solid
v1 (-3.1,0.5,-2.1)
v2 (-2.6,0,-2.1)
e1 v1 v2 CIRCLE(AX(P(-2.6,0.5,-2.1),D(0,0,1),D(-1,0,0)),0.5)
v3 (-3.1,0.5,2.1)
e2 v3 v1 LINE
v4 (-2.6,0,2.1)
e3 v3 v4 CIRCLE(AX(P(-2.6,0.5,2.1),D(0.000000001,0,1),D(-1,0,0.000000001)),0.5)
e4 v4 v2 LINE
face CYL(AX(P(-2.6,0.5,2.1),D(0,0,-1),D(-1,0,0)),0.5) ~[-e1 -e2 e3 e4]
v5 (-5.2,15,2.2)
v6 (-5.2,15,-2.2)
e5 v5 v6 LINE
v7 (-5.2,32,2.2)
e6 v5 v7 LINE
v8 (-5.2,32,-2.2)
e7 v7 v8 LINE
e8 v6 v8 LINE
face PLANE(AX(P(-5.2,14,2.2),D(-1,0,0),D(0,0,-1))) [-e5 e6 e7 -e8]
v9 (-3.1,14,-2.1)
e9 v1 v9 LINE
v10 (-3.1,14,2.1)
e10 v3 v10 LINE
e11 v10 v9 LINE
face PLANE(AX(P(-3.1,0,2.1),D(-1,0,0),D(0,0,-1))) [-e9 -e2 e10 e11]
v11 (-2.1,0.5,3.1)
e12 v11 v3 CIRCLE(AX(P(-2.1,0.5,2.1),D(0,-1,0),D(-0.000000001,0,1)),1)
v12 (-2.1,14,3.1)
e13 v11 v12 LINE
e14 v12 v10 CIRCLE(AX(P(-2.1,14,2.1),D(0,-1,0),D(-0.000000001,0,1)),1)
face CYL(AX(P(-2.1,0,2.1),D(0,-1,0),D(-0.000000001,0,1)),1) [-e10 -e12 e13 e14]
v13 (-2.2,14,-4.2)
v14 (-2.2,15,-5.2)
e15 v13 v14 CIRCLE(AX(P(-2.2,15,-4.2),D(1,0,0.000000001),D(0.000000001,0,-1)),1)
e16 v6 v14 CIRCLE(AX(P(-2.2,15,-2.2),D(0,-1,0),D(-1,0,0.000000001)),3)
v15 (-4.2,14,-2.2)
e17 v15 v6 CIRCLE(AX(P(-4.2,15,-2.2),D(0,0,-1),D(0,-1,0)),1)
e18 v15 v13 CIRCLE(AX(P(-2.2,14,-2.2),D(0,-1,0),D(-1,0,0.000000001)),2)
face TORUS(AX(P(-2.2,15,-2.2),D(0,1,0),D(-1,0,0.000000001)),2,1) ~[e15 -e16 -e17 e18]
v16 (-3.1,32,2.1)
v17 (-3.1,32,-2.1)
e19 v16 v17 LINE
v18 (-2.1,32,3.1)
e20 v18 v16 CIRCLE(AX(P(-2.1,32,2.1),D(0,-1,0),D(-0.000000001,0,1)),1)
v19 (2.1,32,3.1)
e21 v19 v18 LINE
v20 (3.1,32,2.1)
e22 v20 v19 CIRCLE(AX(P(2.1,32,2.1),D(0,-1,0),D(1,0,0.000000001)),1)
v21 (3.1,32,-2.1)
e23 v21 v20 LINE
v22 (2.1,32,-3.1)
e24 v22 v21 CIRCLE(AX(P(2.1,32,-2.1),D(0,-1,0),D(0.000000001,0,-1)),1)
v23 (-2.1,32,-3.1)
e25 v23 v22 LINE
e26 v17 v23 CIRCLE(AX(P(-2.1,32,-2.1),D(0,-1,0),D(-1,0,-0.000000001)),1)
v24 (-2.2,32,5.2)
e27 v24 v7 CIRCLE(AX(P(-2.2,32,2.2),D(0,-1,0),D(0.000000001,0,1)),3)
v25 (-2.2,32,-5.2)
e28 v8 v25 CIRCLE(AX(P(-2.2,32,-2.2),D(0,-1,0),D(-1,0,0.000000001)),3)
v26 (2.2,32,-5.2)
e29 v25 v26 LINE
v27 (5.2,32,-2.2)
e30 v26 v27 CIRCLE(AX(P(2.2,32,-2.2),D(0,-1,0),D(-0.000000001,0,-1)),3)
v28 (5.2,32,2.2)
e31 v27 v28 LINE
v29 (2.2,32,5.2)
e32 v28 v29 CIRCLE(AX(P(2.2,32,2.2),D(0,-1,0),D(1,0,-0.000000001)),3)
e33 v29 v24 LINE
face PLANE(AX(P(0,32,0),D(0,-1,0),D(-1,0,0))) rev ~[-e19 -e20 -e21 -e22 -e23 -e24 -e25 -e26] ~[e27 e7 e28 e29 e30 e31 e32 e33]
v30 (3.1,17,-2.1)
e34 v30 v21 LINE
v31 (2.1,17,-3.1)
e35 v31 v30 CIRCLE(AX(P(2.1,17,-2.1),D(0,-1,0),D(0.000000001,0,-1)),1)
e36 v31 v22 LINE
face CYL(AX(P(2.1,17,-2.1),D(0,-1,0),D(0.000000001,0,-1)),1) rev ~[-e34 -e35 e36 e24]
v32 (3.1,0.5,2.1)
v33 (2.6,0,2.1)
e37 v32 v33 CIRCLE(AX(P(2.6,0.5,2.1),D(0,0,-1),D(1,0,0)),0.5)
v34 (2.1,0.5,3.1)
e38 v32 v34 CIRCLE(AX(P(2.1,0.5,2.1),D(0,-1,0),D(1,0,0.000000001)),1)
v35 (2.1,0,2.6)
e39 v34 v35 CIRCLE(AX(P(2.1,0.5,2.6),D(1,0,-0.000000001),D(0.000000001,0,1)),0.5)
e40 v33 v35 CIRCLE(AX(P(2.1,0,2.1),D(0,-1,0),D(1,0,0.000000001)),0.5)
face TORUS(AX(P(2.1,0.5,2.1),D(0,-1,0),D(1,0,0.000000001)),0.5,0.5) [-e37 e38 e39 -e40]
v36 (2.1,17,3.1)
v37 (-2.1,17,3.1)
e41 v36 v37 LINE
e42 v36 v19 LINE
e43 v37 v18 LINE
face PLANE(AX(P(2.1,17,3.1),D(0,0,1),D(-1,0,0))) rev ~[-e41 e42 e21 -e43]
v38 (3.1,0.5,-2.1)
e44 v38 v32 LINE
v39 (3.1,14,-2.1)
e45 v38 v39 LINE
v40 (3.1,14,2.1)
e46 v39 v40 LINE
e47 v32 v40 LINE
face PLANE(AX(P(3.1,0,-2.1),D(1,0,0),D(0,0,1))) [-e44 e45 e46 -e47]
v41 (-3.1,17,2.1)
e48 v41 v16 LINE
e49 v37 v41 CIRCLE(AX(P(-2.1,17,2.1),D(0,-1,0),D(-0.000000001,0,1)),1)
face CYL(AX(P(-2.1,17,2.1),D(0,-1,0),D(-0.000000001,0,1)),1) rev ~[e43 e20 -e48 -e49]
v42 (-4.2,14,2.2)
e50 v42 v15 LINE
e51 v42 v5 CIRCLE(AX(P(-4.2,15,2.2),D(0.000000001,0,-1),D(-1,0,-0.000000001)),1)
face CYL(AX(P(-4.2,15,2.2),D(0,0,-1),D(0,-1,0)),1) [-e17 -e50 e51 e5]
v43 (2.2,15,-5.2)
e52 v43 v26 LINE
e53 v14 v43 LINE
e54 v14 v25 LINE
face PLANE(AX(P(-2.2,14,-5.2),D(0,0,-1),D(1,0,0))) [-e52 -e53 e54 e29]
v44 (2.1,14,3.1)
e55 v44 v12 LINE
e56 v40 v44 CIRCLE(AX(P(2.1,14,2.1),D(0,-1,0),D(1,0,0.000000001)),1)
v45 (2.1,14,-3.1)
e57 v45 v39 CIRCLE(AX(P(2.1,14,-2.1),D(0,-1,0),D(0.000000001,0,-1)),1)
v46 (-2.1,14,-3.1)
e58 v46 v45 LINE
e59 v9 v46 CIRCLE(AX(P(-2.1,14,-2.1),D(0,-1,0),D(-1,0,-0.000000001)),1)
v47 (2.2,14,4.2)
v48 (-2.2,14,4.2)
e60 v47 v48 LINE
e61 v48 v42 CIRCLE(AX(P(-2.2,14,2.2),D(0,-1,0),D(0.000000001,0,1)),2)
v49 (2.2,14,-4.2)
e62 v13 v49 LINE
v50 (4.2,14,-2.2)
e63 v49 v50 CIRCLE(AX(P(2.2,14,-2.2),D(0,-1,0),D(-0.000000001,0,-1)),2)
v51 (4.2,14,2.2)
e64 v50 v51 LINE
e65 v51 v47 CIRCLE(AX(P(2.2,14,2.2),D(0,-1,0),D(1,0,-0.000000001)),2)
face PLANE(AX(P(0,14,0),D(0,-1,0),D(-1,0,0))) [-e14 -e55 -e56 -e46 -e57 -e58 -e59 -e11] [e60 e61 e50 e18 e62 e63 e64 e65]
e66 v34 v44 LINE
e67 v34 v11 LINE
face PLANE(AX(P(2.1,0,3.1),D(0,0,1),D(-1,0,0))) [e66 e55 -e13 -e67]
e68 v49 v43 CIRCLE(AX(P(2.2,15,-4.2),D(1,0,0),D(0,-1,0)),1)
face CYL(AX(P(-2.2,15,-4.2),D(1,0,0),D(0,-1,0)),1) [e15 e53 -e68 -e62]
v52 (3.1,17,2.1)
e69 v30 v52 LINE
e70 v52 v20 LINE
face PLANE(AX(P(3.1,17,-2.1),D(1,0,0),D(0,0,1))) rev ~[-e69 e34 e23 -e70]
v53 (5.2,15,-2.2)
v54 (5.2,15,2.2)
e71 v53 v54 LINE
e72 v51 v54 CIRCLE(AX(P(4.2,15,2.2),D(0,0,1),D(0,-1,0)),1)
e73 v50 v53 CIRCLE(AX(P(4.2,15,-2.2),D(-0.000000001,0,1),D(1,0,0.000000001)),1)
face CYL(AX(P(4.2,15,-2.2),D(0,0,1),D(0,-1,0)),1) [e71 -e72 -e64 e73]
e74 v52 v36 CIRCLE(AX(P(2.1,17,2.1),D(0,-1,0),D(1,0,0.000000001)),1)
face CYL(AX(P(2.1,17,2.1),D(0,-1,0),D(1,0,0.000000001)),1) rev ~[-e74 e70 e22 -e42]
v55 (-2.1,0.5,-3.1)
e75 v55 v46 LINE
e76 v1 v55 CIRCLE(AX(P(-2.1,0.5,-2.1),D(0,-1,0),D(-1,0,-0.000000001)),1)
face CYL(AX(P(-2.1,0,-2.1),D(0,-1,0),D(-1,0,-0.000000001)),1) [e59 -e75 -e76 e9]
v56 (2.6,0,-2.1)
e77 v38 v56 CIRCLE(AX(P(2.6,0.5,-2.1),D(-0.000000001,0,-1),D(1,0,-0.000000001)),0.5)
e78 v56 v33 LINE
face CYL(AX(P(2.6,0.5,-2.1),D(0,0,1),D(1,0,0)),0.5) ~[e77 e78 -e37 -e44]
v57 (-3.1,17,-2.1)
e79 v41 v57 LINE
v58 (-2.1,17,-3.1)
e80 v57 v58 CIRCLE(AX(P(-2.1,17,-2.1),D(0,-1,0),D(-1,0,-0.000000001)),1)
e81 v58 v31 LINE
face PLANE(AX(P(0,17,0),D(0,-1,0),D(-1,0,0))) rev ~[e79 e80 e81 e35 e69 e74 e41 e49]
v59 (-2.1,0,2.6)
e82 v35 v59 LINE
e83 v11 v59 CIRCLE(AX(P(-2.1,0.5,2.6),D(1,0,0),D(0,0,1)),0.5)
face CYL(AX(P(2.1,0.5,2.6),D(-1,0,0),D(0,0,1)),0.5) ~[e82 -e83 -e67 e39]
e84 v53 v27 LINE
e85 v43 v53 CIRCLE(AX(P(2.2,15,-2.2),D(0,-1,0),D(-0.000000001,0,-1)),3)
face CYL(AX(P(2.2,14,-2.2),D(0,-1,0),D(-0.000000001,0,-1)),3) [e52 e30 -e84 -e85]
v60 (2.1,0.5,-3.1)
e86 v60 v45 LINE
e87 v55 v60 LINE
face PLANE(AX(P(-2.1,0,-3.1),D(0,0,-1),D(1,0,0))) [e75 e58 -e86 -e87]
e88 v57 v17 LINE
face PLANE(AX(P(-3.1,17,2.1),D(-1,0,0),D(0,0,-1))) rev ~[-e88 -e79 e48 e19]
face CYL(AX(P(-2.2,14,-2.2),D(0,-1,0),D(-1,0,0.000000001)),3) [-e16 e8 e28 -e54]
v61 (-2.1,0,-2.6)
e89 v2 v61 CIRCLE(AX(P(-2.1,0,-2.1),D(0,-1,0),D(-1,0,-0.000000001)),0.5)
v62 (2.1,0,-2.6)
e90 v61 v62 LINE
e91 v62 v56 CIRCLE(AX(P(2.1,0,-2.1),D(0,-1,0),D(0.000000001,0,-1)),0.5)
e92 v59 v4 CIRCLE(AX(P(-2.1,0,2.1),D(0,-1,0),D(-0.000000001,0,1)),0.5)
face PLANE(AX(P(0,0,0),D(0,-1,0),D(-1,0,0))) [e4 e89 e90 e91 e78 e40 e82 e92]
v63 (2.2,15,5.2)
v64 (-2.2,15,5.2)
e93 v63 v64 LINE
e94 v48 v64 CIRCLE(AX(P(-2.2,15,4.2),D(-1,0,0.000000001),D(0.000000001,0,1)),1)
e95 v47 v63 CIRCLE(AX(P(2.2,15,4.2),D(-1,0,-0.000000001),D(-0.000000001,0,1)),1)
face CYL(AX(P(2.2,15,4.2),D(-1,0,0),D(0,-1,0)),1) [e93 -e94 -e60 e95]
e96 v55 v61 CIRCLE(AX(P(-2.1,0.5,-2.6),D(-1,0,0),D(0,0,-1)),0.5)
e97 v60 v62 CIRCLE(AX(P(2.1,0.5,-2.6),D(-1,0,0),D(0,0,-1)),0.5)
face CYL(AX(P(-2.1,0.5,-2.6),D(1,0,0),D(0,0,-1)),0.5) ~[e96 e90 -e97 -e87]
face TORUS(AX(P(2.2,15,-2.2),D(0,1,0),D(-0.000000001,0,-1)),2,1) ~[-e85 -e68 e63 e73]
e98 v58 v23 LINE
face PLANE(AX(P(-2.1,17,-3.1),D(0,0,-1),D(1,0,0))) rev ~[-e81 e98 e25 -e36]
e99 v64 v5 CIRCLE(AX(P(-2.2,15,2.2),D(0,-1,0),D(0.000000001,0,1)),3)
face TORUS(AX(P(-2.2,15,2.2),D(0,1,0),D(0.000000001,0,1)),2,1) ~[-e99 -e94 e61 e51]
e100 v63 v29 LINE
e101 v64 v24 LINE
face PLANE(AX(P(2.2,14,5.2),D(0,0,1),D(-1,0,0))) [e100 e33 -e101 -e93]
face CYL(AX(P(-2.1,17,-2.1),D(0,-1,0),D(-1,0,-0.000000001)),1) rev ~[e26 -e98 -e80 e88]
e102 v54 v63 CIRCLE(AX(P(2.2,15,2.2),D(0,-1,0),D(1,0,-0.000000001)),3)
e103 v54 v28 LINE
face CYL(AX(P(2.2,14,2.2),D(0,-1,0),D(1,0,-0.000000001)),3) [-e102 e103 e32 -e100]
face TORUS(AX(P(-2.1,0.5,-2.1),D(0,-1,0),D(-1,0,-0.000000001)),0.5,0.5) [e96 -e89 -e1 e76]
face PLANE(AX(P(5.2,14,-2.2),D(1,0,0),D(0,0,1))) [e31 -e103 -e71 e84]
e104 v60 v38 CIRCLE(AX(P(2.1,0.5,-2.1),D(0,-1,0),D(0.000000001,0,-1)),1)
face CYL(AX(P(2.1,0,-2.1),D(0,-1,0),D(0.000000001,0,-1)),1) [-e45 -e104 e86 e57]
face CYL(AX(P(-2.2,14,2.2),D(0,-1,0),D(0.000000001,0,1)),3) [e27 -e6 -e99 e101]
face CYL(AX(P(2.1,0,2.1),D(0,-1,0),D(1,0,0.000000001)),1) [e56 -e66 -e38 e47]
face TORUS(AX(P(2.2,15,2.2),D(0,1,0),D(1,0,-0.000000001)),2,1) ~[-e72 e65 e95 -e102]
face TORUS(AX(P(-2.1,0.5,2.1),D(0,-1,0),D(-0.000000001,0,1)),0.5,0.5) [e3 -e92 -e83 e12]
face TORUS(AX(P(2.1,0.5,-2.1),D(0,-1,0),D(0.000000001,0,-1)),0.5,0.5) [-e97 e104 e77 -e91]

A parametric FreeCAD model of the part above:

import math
import FreeCAD as App
import Part
import Sketcher

V = App.Vector


def edges_at(feature, points):
    """Names of the edges that pass closest to the given points."""
    edges = feature.Shape.Edges
    near = lambda p: min(range(len(edges)), key=lambda i: edges[i].distToShape(Part.Vertex(*p))[0])
    return sorted({f"Edge{near(p) + 1}" for p in points})

doc = App.newDocument("Part")
body = doc.addObject("PartDesign::Body", "Body")

# Sketch on XZ plane
sketch1 = doc.addObject("Sketcher::SketchObject", "Sketch")
body.addObject(sketch1)
sketch1.AttachmentSupport = (doc.XZ_Plane, [""])
sketch1.MapMode = "FlatFace"
sketch1.addGeometry([
    Part.LineSegment(V(2.1, -3.1, 0), V(-2.1, -3.1, 0)),  # 0
    Part.ArcOfCircle(Part.Circle(V(-2.1, -2.1, 0), V(0, 0, 1), 1), math.radians(-180), math.radians(-90)),  # 1
    Part.LineSegment(V(-3.1, -2.1, 0), V(-3.1, 2.1, 0)),  # 2
    Part.ArcOfCircle(Part.Circle(V(-2.1, 2.1, 0), V(0, 0, 1), 1), math.radians(90), math.radians(180)),  # 3
    Part.LineSegment(V(-2.1, 3.1, 0), V(2.1, 3.1, 0)),  # 4
    Part.ArcOfCircle(Part.Circle(V(2.1, 2.1, 0), V(0, 0, 1), 1), math.radians(0), math.radians(90)),  # 5
    Part.LineSegment(V(3.1, 2.1, 0), V(3.1, -2.1, 0)),  # 6
    Part.ArcOfCircle(Part.Circle(V(2.1, -2.1, 0), V(0, 0, 1), 1), math.radians(-90), math.radians(0)),  # 7
], False)
sketch1.addConstraint([
    Sketcher.Constraint("Tangent", 0, 2, 1, 2),
    Sketcher.Constraint("Tangent", 1, 1, 2, 1),
    Sketcher.Constraint("Tangent", 2, 2, 3, 2),
    Sketcher.Constraint("Tangent", 3, 1, 4, 1),
    Sketcher.Constraint("Tangent", 4, 2, 5, 2),
    Sketcher.Constraint("Tangent", 5, 1, 6, 1),
    Sketcher.Constraint("Tangent", 6, 2, 7, 2),
    Sketcher.Constraint("Tangent", 7, 1, 0, 1),
    Sketcher.Constraint("Horizontal", 0),
    Sketcher.Constraint("Vertical", 2),
    Sketcher.Constraint("Horizontal", 4),
    Sketcher.Constraint("Vertical", 6),
    Sketcher.Constraint("Equal", 1, 3),
    Sketcher.Constraint("Equal", 3, 5),
    Sketcher.Constraint("Equal", 5, 7),
    Sketcher.Constraint("Symmetric", 1, 3, 5, 3, -1, 1),
    Sketcher.Constraint("Equal", 4, 2),
    Sketcher.Constraint("Radius", 1, 1.0),
    Sketcher.Constraint("DistanceX", 0, 2, 0, 1, 4.2),
])
pad1 = doc.addObject("PartDesign::Pad", "Pad")
body.addObject(pad1)
pad1.Profile = sketch1
pad1.Length = 14
pad1.Reversed = True

# Sketch on XZ plane
sketch2 = doc.addObject("Sketcher::SketchObject", "Sketch001")
body.addObject(sketch2)
sketch2.AttachmentSupport = (doc.XZ_Plane, [""])
sketch2.MapMode = "FlatFace"
sketch2.AttachmentOffset = App.Placement(V(0, 0, -14), App.Rotation())
sketch2.addGeometry([
    Part.LineSegment(V(2.2, -5.2, 0), V(-2.2, -5.2, 0)),  # 0
    Part.ArcOfCircle(Part.Circle(V(-2.2, -2.2, 0), V(0, 0, 1), 3), math.radians(180), math.radians(270)),  # 1
    Part.LineSegment(V(-5.2, -2.2, 0), V(-5.2, 2.2, 0)),  # 2
    Part.ArcOfCircle(Part.Circle(V(-2.2, 2.2, 0), V(0, 0, 1), 3), math.radians(90), math.radians(180)),  # 3
    Part.LineSegment(V(-2.2, 5.2, 0), V(2.2, 5.2, 0)),  # 4
    Part.ArcOfCircle(Part.Circle(V(2.2, 2.2, 0), V(0, 0, 1), 3), math.radians(0), math.radians(90)),  # 5
    Part.LineSegment(V(5.2, 2.2, 0), V(5.2, -2.2, 0)),  # 6
    Part.ArcOfCircle(Part.Circle(V(2.2, -2.2, 0), V(0, 0, 1), 3), math.radians(-90), math.radians(0)),  # 7
], False)
sketch2.addConstraint([
    Sketcher.Constraint("Tangent", 0, 2, 1, 2),
    Sketcher.Constraint("Tangent", 1, 1, 2, 1),
    Sketcher.Constraint("Tangent", 2, 2, 3, 2),
    Sketcher.Constraint("Tangent", 3, 1, 4, 1),
    Sketcher.Constraint("Tangent", 4, 2, 5, 2),
    Sketcher.Constraint("Tangent", 5, 1, 6, 1),
    Sketcher.Constraint("Tangent", 6, 2, 7, 2),
    Sketcher.Constraint("Tangent", 7, 1, 0, 1),
    Sketcher.Constraint("Horizontal", 0),
    Sketcher.Constraint("Vertical", 2),
    Sketcher.Constraint("Horizontal", 4),
    Sketcher.Constraint("Vertical", 6),
    Sketcher.Constraint("Equal", 1, 3),
    Sketcher.Constraint("Equal", 3, 5),
    Sketcher.Constraint("Equal", 5, 7),
    Sketcher.Constraint("Symmetric", 1, 3, 5, 3, -1, 1),
    Sketcher.Constraint("Equal", 4, 2),
    Sketcher.Constraint("Radius", 1, 3.0),
    Sketcher.Constraint("DistanceX", 0, 2, 0, 1, 4.4),
])
pad2 = doc.addObject("PartDesign::Pad", "Pad001")
body.addObject(pad2)
pad2.Profile = sketch2
pad2.Length = 18
pad2.Reversed = True

# Sketch on XZ plane
sketch3 = doc.addObject("Sketcher::SketchObject", "Sketch002")
body.addObject(sketch3)
sketch3.AttachmentSupport = (doc.XZ_Plane, [""])
sketch3.MapMode = "FlatFace"
sketch3.AttachmentOffset = App.Placement(V(0, 0, -17), App.Rotation())
sketch3.addGeometry([
    Part.LineSegment(V(2.1, -3.1, 0), V(-2.1, -3.1, 0)),  # 0
    Part.ArcOfCircle(Part.Circle(V(-2.1, -2.1, 0), V(0, 0, 1), 1), math.radians(-180), math.radians(-90)),  # 1
    Part.LineSegment(V(-3.1, -2.1, 0), V(-3.1, 2.1, 0)),  # 2
    Part.ArcOfCircle(Part.Circle(V(-2.1, 2.1, 0), V(0, 0, 1), 1), math.radians(90), math.radians(180)),  # 3
    Part.LineSegment(V(-2.1, 3.1, 0), V(2.1, 3.1, 0)),  # 4
    Part.ArcOfCircle(Part.Circle(V(2.1, 2.1, 0), V(0, 0, 1), 1), math.radians(0), math.radians(90)),  # 5
    Part.LineSegment(V(3.1, 2.1, 0), V(3.1, -2.1, 0)),  # 6
    Part.ArcOfCircle(Part.Circle(V(2.1, -2.1, 0), V(0, 0, 1), 1), math.radians(-90), math.radians(0)),  # 7
], False)
sketch3.addConstraint([
    Sketcher.Constraint("Tangent", 0, 2, 1, 2),
    Sketcher.Constraint("Tangent", 1, 1, 2, 1),
    Sketcher.Constraint("Tangent", 2, 2, 3, 2),
    Sketcher.Constraint("Tangent", 3, 1, 4, 1),
    Sketcher.Constraint("Tangent", 4, 2, 5, 2),
    Sketcher.Constraint("Tangent", 5, 1, 6, 1),
    Sketcher.Constraint("Tangent", 6, 2, 7, 2),
    Sketcher.Constraint("Tangent", 7, 1, 0, 1),
    Sketcher.Constraint("Horizontal", 0),
    Sketcher.Constraint("Vertical", 2),
    Sketcher.Constraint("Horizontal", 4),
    Sketcher.Constraint("Vertical", 6),
    Sketcher.Constraint("Equal", 1, 3),
    Sketcher.Constraint("Equal", 3, 5),
    Sketcher.Constraint("Equal", 5, 7),
    Sketcher.Constraint("Symmetric", 1, 3, 5, 3, -1, 1),
    Sketcher.Constraint("Equal", 4, 2),
    Sketcher.Constraint("Radius", 1, 1.0),
    Sketcher.Constraint("DistanceX", 0, 2, 0, 1, 4.2),
])
pocket1 = doc.addObject("PartDesign::Pocket", "Pocket")
body.addObject(pocket1)
pocket1.Profile = sketch3
pocket1.Length = 15
doc.recompute()

fillet = doc.addObject("PartDesign::Fillet", "Fillet")
body.addObject(fillet)
fillet.Base = (pocket1, edges_at(pocket1, [
    (-4.321, 14, 4.321),
    (0, 14, 5.2),
    (4.321, 14, 4.321),
    (5.2, 14, 0),
    (4.321, 14, -4.321),
    (0, 14, -5.2),
    (-4.321, 14, -4.321),
    (-5.2, 14, 0),
]))
fillet.Radius = 1
doc.recompute()

fillet2 = doc.addObject("PartDesign::Fillet", "Fillet001")
body.addObject(fillet2)
fillet2.Base = (fillet, edges_at(fillet, [
    (0, 0, -3.1),
    (2.807, 0, -2.807),
    (3.1, 0, 0),
    (2.807, 0, 2.807),
    (0, 0, 3.1),
    (-2.807, 0, 2.807),
    (-3.1, 0, 0),
    (-2.807, 0, -2.807),
]))
fillet2.Radius = 0.5

doc.recompute()
